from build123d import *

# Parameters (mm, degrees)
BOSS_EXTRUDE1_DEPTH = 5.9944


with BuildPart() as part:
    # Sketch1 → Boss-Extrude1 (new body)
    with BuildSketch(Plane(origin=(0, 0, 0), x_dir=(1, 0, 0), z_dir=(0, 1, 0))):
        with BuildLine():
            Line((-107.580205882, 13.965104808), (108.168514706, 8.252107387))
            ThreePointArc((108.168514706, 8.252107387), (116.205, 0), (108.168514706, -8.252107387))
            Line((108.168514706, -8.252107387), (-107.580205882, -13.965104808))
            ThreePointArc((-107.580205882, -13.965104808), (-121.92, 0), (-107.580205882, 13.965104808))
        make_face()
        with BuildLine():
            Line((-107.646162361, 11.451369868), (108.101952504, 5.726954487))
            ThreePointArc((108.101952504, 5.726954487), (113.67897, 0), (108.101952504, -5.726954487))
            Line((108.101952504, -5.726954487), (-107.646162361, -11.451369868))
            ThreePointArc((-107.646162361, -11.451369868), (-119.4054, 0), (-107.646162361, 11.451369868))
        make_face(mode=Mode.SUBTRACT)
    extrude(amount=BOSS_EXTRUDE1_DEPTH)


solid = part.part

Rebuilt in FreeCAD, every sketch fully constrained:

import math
import FreeCAD as App
import Part
import Sketcher
Q = App.Units.Quantity

doc = App.newDocument("Part")
body = doc.addObject("PartDesign::Body", "Body")

sketch1 = body.newObject("Sketcher::SketchObject", "Sketch")
sketch1.AttachmentSupport = (doc.getObject("XZ_Plane"), [""])
sketch1.MapMode = "FlatFace"
sketch1.addGeometry(Part.LineSegment(App.Vector(108, -8, 0), App.Vector(-108, -14, 0)), False)
sketch1.addGeometry(Part.ArcOfCircle(Part.Circle(App.Vector(-108, 0, 0), App.Vector(0, 0, 1), 14), math.radians(88), math.radians(272)), False)
sketch1.addGeometry(Part.LineSegment(App.Vector(-108, 14, 0), App.Vector(108, 8, 0)), False)
sketch1.addGeometry(Part.ArcOfCircle(Part.Circle(App.Vector(108, 0, 0), App.Vector(0, 0, 1), 8), math.radians(-88), math.radians(88)), False)
sketch1.addGeometry(Part.LineSegment(App.Vector(-108, -11, 0), App.Vector(108, -6, 0)), False)
sketch1.addGeometry(Part.ArcOfCircle(Part.Circle(App.Vector(108, 0, 0), App.Vector(0, 0, 1), 6), math.radians(-88), math.radians(88)), False)
sketch1.addGeometry(Part.LineSegment(App.Vector(108, 6, 0), App.Vector(-108, 11, 0)), False)
sketch1.addGeometry(Part.ArcOfCircle(Part.Circle(App.Vector(-108, 0, 0), App.Vector(0, 0, 1), 11), math.radians(88), math.radians(272)), False)
sketch1.addConstraint(Sketcher.Constraint("Tangent", 0, 2, 1, 2))
sketch1.addConstraint(Sketcher.Constraint("Tangent", 1, 1, 2, 1))
sketch1.addConstraint(Sketcher.Constraint("Tangent", 2, 2, 3, 2))
sketch1.addConstraint(Sketcher.Constraint("Tangent", 3, 1, 0, 1))
sketch1.addConstraint(Sketcher.Constraint("Tangent", 4, 2, 5, 1))
sketch1.addConstraint(Sketcher.Constraint("Tangent", 5, 2, 6, 1))
sketch1.addConstraint(Sketcher.Constraint("Tangent", 6, 2, 7, 1))
sketch1.addConstraint(Sketcher.Constraint("Tangent", 7, 2, 4, 1))
sketch1.addConstraint(Sketcher.Constraint("Coincident", 5, 3, 3, 3))
sketch1.addConstraint(Sketcher.Constraint("Coincident", 7, 3, 1, 3))
sketch1.addConstraint(Sketcher.Constraint("Symmetric", 1, 3, 3, 3, -1, 1))
sketch1.addConstraint(Sketcher.Constraint("PointOnObject", 1, 3, -1))
sketch1.addConstraint(Sketcher.Constraint("Radius", 1, Q("0.55 in")))
sketch1.addConstraint(Sketcher.Constraint("Radius", 3, Q("0.325 in")))
sketch1.addConstraint(Sketcher.Constraint("Radius", 7, Q("0.451 in")))
sketch1.addConstraint(Sketcher.Constraint("DistanceX", 1, 3, 3, 3, Q("8.5 in")))
sketch1.addConstraint(Sketcher.Constraint("Radius", 5, 5.72897))
pad1 = body.newObject("PartDesign::Pad", "Pad")
pad1.Profile = sketch1
pad1.Length = Q("0.236 in")
pad1.Reversed = True

doc.recompute()
